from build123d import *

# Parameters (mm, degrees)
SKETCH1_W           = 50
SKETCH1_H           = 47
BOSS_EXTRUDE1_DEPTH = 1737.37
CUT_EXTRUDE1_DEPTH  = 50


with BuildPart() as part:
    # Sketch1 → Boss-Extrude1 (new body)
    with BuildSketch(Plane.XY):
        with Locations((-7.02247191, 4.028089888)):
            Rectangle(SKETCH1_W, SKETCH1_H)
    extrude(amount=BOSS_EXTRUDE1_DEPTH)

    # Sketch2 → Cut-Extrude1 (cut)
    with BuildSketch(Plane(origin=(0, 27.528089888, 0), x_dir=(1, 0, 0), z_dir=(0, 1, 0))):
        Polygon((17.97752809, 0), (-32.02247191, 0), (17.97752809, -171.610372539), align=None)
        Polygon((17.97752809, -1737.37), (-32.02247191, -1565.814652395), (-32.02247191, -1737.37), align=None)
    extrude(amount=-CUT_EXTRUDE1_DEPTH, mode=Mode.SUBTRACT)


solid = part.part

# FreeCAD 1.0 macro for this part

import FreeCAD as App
import Part
import Sketcher
Q = App.Units.Quantity


def add_polygon(sketch, points):
    """Adds a closed chain of lines whose ends are joined by coincident constraints."""
    first, n = sketch.GeometryCount, len(points)
    for a, b in zip(points, points[1:] + points[:1]):
        sketch.addGeometry(Part.LineSegment(App.Vector(*a, 0), App.Vector(*b, 0)), False)
    for i in range(n):
        sketch.addConstraint(Sketcher.Constraint("Coincident", first + i, 2, first + (i + 1) % n, 1))

doc = App.newDocument("Part")
params = doc.addObject("Spreadsheet::Sheet", "Params")
for row, (alias, value) in enumerate([
    ("sketch1_width", "50 mm"),
    ("sketch1_height", "47 mm"),
    ("pad1_length", "1737.37 mm"),
    ("sketch2_width", "50 mm"),
    ("pocket1_length", "50 mm"),
], start=1):
    params.set(f"A{row}", alias)
    params.set(f"B{row}", "=" + value)
    params.setAlias(f"B{row}", alias)

body = doc.addObject("PartDesign::Body", "Body")

# Sketch on XY plane
sketch1 = body.newObject("Sketcher::SketchObject", "Sketch")
sketch1.AttachmentSupport = (doc.getObject("XY_Plane"), [""])
sketch1.MapMode = "FlatFace"
add_polygon(sketch1, [(-32, 28), (-32, -19), (18, -19), (18, 28)])  # lines 0-3
sketch1.addConstraint(Sketcher.Constraint("Vertical", 0))
sketch1.addConstraint(Sketcher.Constraint("Horizontal", 1))
sketch1.addConstraint(Sketcher.Constraint("Vertical", 2))
sketch1.addConstraint(Sketcher.Constraint("Horizontal", 3))
sketch1.addConstraint(Sketcher.Constraint("DistanceX", 1, 1, 1, 2, Q("50 mm")))
sketch1.addConstraint(Sketcher.Constraint("DistanceY", 0, 2, 0, 1, Q("47 mm")))
sketch1.addConstraint(Sketcher.Constraint("DistanceX", 0, 2, -1, 1, Q("32.022472 mm")))
sketch1.addConstraint(Sketcher.Constraint("DistanceY", 0, 2, -1, 1, Q("19.47191 mm")))
sketch1.setExpression("Constraints[8]", "Params.sketch1_width")
sketch1.setExpression("Constraints[9]", "Params.sketch1_height")
pad1 = body.newObject("PartDesign::Pad", "Pad")
pad1.Profile = sketch1
pad1.setExpression("Length", "Params.pad1_length")

# Sketch on XZ plane
sketch2 = body.newObject("Sketcher::SketchObject", "Sketch001")
sketch2.AttachmentSupport = (doc.getObject("XZ_Plane"), [""])
sketch2.MapMode = "FlatFace"
sketch2.AttachmentOffset = App.Placement(App.Vector(0, 0, -27.52809), App.Rotation())
add_polygon(sketch2, [(18, 0), (-32, 0), (18, 172)])  # lines 0-2
add_polygon(sketch2, [(18, 1737), (-32, 1566), (-32, 1737)])  # lines 3-5
sketch2.addConstraint(Sketcher.Constraint("Horizontal", 0))
sketch2.addConstraint(Sketcher.Constraint("Vertical", 2))
sketch2.addConstraint(Sketcher.Constraint("Vertical", 4))
sketch2.addConstraint(Sketcher.Constraint("Horizontal", 5))
sketch2.addConstraint(Sketcher.Constraint("PointOnObject", 0, 2, -1))
sketch2.addConstraint(Sketcher.Constraint("Vertical", 0, 2, 3, 2))
sketch2.addConstraint(Sketcher.Constraint("Vertical", 2, 2, 5, 2))
sketch2.addConstraint(Sketcher.Constraint("DistanceX", 0, 2, 0, 1, Q("50 mm")))
sketch2.addConstraint(Sketcher.Constraint("DistanceY", -1, 1, 4, 2, Q("1737.37 mm")))
sketch2.addConstraint(Sketcher.Constraint("DistanceY", 2, 2, 2, 1, Q("171.610373 mm")))
sketch2.addConstraint(Sketcher.Constraint("DistanceY", 4, 1, 4, 2, Q("171.555348 mm")))
sketch2.addConstraint(Sketcher.Constraint("DistanceX", 0, 2, -1, 1, Q("32.022472 mm")))
sketch2.setExpression("Constraints[13]", "Params.sketch2_width")
pocket1 = body.newObject("PartDesign::Pocket", "Pocket")
pocket1.Profile = sketch2
pocket1.setExpression("Length", "Params.pocket1_length")
pocket1.Reversed = True

doc.recompute()
